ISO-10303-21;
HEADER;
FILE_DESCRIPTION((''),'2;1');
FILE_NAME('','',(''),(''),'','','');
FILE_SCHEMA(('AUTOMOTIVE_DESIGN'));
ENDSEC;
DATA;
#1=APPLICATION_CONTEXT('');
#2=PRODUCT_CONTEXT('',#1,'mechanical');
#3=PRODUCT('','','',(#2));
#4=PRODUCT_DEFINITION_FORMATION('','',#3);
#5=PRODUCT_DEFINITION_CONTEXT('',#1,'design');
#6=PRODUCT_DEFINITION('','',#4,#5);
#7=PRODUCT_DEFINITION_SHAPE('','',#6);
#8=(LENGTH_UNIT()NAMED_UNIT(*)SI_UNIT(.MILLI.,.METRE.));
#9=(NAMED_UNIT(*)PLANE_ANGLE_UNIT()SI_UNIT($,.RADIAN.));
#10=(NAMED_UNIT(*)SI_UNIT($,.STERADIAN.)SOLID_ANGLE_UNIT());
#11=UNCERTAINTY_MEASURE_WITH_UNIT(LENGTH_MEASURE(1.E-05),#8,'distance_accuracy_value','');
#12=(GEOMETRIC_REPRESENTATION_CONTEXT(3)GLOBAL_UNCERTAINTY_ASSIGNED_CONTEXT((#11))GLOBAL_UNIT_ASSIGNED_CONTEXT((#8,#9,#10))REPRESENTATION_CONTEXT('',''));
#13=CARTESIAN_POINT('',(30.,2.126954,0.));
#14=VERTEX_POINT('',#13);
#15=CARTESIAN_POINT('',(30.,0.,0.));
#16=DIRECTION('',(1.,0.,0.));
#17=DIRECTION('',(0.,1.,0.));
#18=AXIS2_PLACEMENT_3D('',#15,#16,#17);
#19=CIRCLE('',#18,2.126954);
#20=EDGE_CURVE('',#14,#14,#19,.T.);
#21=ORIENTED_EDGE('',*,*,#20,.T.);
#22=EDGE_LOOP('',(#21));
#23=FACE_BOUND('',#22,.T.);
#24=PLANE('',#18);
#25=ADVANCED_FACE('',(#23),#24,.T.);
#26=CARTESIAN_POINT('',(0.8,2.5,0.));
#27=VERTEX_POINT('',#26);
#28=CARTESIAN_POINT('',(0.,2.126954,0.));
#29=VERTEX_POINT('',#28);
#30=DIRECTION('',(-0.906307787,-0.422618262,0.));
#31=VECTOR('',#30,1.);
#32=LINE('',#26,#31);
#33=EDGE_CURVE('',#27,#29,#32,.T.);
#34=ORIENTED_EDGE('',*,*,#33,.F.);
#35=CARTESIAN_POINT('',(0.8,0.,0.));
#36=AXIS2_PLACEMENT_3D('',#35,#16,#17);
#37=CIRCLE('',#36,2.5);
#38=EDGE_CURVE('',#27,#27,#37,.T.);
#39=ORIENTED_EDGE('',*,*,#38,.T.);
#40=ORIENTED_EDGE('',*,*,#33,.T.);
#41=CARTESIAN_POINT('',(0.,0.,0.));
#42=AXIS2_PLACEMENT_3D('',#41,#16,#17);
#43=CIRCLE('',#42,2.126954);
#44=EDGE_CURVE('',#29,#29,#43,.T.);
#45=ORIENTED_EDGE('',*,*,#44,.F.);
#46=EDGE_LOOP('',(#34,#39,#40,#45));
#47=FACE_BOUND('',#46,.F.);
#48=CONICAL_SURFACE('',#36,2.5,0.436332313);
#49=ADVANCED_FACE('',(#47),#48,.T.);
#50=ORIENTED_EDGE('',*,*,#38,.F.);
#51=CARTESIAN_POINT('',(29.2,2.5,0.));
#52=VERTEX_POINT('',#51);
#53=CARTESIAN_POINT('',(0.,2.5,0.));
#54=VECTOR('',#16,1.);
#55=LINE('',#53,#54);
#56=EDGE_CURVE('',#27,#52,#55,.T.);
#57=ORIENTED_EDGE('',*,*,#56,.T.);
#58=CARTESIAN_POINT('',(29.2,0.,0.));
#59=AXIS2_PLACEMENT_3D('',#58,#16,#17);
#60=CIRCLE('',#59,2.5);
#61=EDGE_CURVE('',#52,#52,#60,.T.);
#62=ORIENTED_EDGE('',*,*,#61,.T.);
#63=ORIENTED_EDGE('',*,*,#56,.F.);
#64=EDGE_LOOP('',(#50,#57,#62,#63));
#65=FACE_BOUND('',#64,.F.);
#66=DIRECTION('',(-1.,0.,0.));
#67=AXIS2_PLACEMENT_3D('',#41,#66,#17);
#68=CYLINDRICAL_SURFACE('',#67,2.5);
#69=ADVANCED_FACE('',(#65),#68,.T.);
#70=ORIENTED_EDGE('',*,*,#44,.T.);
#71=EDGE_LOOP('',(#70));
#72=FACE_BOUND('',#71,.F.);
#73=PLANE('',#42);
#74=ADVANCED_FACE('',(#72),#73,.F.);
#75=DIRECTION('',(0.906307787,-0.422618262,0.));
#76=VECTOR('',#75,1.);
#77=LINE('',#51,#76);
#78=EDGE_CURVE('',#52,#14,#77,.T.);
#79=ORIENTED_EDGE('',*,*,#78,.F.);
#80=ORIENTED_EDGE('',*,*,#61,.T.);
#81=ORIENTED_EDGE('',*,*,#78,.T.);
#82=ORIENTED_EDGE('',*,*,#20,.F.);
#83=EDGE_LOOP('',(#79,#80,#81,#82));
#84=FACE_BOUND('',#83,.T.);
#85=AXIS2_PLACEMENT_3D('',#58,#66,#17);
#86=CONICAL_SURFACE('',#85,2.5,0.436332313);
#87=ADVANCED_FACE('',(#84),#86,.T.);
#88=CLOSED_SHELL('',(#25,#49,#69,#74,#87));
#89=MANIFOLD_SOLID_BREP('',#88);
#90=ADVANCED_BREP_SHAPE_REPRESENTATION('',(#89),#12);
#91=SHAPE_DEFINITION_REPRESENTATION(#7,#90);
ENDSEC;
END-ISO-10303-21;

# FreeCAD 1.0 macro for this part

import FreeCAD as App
import Part
import Sketcher


def edges_at(feature, points):
    """Names of the edges that pass closest to the given points."""
    edges = feature.Shape.Edges
    near = lambda p: min(range(len(edges)), key=lambda i: edges[i].distToShape(Part.Vertex(*p))[0])
    return sorted({f"Edge{near(p) + 1}" for p in points})

doc = App.newDocument("Part")
body = doc.addObject("PartDesign::Body", "Body")

sketch1 = body.newObject("Sketcher::SketchObject", "Sketch")
sketch1.AttachmentSupport = (doc.getObject("YZ_Plane"), [""])
sketch1.MapMode = "FlatFace"
sketch1.addGeometry(Part.Circle(App.Vector(0, 0, 0), App.Vector(0, 0, 1), 2.5), False)
sketch1.addConstraint([
    Sketcher.Constraint("Coincident", 0, 3, -1, 1),
    Sketcher.Constraint("Diameter", 0, 5.0),
])
pad1 = body.newObject("PartDesign::Pad", "Pad")
pad1.Profile = sketch1
pad1.Length = 30
doc.recompute()

chamfer = body.newObject("PartDesign::Chamfer", "Chamfer")
chamfer.Base = (pad1, edges_at(pad1, [(0, -2.5, 0)]))
chamfer.ChamferType = "Distance and Angle"
chamfer.Size = 0.8
chamfer.Angle = 25
doc.recompute()

chamfer2 = body.newObject("PartDesign::Chamfer", "Chamfer001")
chamfer2.Base = (chamfer, edges_at(chamfer, [(30, -2.5, 0)]))
chamfer2.ChamferType = "Distance and Angle"
chamfer2.Size = 0.8
chamfer2.Angle = 25

doc.recompute()
